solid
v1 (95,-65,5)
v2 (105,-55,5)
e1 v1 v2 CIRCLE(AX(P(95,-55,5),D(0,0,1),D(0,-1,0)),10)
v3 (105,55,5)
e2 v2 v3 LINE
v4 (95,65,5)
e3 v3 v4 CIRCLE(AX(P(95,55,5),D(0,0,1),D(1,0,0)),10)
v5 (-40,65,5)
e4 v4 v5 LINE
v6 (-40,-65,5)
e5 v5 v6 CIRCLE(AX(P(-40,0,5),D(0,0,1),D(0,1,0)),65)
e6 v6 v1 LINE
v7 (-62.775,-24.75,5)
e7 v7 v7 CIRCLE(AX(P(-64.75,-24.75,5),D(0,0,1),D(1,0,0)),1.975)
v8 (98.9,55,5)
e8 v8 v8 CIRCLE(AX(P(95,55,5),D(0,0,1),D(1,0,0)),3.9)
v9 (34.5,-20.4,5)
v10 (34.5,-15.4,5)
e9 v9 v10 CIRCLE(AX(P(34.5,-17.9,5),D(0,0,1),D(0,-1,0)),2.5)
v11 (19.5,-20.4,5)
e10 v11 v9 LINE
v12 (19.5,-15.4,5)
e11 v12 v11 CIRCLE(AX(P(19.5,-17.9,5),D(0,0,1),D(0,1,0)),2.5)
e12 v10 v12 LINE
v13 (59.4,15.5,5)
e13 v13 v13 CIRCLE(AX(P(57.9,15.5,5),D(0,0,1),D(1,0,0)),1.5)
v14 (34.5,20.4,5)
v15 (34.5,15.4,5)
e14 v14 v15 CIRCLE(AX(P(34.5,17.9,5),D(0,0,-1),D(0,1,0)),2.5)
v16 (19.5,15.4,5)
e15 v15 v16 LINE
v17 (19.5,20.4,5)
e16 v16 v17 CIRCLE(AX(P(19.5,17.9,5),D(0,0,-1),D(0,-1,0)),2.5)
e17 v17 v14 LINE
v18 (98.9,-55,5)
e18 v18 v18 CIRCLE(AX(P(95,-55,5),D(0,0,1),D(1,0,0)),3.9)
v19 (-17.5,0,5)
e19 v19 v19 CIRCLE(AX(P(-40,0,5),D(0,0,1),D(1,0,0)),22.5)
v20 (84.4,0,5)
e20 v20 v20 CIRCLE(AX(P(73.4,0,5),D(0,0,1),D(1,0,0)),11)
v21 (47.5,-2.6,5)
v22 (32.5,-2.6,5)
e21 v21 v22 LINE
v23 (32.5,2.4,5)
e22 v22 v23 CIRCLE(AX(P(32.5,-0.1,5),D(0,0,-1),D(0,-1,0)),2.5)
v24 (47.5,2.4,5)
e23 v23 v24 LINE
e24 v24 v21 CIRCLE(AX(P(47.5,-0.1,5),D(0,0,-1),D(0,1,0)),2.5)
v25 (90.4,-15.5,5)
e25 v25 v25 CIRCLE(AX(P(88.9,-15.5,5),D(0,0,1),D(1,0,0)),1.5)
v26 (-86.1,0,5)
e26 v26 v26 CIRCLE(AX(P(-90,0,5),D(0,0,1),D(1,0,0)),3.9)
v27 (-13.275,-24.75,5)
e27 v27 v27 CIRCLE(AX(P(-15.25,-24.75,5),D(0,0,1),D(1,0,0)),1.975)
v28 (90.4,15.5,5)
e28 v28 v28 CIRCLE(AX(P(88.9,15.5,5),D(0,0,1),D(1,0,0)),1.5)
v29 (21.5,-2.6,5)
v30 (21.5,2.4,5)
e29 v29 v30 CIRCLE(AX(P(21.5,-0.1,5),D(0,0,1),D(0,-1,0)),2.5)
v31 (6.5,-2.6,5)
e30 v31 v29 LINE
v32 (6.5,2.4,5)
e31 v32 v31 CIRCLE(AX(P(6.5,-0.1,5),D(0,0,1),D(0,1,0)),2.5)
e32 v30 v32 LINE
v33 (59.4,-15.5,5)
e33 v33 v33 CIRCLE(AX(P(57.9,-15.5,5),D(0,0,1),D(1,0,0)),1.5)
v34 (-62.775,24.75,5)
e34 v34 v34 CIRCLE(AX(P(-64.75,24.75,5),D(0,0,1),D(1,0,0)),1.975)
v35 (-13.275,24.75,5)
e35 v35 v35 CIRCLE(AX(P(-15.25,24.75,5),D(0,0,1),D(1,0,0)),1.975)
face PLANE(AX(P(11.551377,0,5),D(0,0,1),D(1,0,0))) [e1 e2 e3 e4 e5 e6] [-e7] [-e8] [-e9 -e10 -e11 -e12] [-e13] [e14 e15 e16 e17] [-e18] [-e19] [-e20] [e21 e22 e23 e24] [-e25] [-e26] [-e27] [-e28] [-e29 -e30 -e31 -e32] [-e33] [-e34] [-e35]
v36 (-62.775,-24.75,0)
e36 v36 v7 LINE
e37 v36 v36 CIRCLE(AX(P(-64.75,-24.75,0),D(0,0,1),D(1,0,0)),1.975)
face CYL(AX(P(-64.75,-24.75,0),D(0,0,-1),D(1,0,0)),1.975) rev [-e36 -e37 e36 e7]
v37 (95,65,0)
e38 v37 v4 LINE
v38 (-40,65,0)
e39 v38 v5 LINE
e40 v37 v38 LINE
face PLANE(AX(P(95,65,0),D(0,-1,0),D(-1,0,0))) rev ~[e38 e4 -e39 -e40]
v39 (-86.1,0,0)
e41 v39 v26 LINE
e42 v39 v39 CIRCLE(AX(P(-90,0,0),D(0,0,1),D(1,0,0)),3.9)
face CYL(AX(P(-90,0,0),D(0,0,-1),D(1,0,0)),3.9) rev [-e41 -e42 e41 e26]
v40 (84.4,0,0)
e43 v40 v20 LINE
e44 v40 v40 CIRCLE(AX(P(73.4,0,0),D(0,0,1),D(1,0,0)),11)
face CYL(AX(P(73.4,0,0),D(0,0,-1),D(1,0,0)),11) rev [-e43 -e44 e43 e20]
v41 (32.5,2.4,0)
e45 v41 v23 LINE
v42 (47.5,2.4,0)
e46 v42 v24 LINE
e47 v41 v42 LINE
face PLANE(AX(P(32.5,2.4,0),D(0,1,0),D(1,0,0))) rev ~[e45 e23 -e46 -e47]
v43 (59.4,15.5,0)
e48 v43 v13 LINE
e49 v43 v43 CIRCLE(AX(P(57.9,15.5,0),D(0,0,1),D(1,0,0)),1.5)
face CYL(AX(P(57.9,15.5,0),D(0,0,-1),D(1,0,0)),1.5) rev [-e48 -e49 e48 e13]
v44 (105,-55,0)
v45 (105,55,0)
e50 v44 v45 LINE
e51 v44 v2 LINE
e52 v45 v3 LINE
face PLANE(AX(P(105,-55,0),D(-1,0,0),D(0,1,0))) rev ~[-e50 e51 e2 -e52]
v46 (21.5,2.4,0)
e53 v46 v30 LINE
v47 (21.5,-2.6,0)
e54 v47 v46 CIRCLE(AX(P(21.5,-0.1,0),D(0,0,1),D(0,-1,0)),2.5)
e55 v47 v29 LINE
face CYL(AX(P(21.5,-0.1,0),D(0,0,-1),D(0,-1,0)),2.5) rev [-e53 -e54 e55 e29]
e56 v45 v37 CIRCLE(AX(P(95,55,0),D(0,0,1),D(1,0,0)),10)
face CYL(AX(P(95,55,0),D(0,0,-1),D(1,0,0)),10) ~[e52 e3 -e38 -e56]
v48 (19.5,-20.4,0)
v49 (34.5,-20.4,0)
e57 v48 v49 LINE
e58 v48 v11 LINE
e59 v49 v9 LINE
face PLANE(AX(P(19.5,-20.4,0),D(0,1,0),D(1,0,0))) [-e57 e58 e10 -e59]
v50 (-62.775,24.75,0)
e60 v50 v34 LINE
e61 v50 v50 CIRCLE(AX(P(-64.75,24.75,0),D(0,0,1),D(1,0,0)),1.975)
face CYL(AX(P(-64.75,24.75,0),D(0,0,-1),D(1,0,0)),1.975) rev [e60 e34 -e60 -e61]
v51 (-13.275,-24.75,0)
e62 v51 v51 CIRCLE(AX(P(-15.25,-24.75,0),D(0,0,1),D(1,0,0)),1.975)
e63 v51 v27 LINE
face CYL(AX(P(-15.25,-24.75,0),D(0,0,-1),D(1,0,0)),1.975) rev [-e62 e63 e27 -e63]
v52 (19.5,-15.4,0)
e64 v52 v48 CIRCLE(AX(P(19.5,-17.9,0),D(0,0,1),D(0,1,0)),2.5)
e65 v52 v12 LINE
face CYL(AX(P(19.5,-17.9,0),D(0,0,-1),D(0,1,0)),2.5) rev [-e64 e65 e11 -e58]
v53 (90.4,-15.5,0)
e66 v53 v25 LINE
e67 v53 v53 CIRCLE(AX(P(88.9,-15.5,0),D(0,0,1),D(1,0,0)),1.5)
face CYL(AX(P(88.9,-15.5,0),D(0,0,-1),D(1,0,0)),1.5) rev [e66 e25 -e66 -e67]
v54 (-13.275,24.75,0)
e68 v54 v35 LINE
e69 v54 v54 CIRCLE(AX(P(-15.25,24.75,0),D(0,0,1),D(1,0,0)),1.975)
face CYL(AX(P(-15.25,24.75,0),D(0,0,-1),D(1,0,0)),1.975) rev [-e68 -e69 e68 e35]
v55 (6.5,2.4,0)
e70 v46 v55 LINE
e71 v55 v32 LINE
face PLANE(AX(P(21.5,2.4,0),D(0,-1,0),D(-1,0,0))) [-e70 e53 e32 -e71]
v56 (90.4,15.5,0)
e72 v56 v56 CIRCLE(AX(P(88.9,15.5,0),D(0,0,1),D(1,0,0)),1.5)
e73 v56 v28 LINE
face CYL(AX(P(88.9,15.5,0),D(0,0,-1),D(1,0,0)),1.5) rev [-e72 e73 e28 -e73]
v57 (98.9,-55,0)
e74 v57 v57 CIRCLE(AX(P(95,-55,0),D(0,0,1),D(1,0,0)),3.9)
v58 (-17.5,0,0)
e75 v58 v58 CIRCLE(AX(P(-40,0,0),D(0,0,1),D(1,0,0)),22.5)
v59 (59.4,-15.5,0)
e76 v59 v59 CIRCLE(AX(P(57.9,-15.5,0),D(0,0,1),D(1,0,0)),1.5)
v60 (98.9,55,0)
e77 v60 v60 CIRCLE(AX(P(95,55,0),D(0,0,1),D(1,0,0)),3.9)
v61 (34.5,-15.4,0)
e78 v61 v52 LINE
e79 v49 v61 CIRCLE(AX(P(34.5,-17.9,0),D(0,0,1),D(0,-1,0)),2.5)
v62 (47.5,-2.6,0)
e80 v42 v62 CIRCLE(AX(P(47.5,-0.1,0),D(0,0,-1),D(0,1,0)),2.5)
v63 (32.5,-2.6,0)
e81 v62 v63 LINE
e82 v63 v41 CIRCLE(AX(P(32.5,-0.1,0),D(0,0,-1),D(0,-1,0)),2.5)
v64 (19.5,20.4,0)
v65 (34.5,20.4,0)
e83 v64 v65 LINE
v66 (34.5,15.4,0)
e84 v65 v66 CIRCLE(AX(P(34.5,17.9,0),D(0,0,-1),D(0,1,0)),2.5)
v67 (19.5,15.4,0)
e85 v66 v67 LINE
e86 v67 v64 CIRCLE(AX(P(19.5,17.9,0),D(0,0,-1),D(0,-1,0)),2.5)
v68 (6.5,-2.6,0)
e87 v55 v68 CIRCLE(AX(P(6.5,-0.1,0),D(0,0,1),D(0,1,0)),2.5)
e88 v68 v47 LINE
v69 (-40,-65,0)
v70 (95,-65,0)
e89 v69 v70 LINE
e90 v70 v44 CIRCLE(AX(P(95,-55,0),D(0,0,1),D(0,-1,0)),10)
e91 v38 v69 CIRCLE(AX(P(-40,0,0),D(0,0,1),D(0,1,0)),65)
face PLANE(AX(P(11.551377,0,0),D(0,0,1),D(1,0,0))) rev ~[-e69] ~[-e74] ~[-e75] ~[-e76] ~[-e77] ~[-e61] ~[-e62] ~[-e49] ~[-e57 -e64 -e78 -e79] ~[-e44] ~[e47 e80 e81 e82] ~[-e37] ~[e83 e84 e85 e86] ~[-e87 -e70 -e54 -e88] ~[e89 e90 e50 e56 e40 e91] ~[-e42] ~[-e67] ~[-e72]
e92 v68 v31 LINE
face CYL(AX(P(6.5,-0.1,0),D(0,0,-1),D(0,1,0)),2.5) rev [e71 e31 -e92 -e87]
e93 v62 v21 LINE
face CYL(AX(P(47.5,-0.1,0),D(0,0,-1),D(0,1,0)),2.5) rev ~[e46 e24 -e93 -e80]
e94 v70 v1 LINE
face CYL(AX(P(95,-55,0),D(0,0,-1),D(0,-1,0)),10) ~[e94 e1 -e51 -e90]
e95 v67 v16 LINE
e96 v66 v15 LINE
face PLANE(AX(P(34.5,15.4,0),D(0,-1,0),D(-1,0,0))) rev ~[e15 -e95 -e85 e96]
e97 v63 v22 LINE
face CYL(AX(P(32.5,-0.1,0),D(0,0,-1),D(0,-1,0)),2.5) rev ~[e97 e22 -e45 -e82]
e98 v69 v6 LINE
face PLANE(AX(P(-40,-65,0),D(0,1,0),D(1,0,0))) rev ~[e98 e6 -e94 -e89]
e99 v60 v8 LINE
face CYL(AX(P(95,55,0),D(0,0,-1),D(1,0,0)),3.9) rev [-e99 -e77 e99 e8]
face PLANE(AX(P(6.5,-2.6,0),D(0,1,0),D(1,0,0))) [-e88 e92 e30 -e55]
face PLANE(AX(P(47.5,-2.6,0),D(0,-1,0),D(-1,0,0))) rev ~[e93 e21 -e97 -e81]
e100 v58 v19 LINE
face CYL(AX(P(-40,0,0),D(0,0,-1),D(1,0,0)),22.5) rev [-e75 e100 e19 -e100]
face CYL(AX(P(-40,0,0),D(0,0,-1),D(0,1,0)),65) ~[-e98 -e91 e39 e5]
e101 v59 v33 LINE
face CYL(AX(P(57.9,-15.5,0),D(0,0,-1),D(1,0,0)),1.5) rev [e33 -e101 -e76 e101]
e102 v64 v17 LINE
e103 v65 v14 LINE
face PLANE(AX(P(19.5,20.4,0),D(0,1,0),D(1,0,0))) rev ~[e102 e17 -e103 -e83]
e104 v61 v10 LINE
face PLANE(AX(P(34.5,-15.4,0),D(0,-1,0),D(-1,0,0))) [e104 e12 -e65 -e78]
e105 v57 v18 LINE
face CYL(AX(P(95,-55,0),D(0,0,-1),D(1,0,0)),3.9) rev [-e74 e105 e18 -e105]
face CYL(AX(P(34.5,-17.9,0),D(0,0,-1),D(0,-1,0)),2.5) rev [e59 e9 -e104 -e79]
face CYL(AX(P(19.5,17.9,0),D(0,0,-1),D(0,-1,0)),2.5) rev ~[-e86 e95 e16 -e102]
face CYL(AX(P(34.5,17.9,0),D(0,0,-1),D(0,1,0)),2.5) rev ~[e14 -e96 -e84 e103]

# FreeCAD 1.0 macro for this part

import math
import FreeCAD as App
import Part
import Sketcher

V = App.Vector

doc = App.newDocument("Part")
body = doc.addObject("PartDesign::Body", "Body")

# Sketch on XY plane
sketch1 = body.newObject("Sketcher::SketchObject", "Sketch")
sketch1.AttachmentSupport = (doc.getObject("XY_Plane"), [""])
sketch1.MapMode = "FlatFace"
sketch1.addGeometry([
    Part.LineSegment(V(-40, -65, 0), V(95, -65, 0)),  # 0
    Part.ArcOfCircle(Part.Circle(V(95, -55, 0), V(0, 0, 1), 10), math.radians(-90), math.radians(0)),  # 1
    Part.LineSegment(V(105, -55, 0), V(105, 55, 0)),  # 2
    Part.ArcOfCircle(Part.Circle(V(95, 55, 0), V(0, 0, 1), 10), math.radians(0), math.radians(90)),  # 3
    Part.LineSegment(V(95, 65, 0), V(-40, 65, 0)),  # 4
    Part.ArcOfCircle(Part.Circle(V(-40, 0, 0), V(0, 0, 1), 65), math.radians(90), math.radians(270)),  # 5
    Part.Circle(V(-64.8, -24.8, 0), V(0, 0, 1), 2),  # 6
    Part.Circle(V(-90, 0, 0), V(0, 0, 1), 3.9),  # 7
    Part.Circle(V(-15.2, -24.8, 0), V(0, 0, 1), 2),  # 8
    Part.Circle(V(-40, 0, 0), V(0, 0, 1), 22.5),  # 9
    Part.Circle(V(95, -55, 0), V(0, 0, 1), 3.9),  # 10
    Part.LineSegment(V(19.5, -15.4, 0), V(34.5, -15.4, 0)),  # 11
    Part.ArcOfCircle(Part.Circle(V(34.5, -17.9, 0), V(0, 0, 1), 2.5), math.radians(-90), math.radians(90)),  # 12
    Part.LineSegment(V(34.5, -20.4, 0), V(19.5, -20.4, 0)),  # 13
    Part.ArcOfCircle(Part.Circle(V(19.5, -17.9, 0), V(0, 0, 1), 2.5), math.radians(90), math.radians(270)),  # 14
    Part.LineSegment(V(6.5, 2.4, 0), V(21.5, 2.4, 0)),  # 15
    Part.ArcOfCircle(Part.Circle(V(21.5, -0.1, 0), V(0, 0, 1), 2.5), math.radians(-90), math.radians(90)),  # 16
    Part.LineSegment(V(21.5, -2.6, 0), V(6.5, -2.6, 0)),  # 17
    Part.ArcOfCircle(Part.Circle(V(6.5, -0.1, 0), V(0, 0, 1), 2.5), math.radians(90), math.radians(270)),  # 18
    Part.ArcOfCircle(Part.Circle(V(32.5, -0.1, 0), V(0, 0, 1), 2.5), math.radians(90), math.radians(270)),  # 19
    Part.LineSegment(V(32.5, 2.4, 0), V(47.5, 2.4, 0)),  # 20
    Part.ArcOfCircle(Part.Circle(V(47.5, -0.1, 0), V(0, 0, 1), 2.5), math.radians(-90), math.radians(90)),  # 21
    Part.LineSegment(V(47.5, -2.6, 0), V(32.5, -2.6, 0)),  # 22
    Part.Circle(V(57.9, -15.5, 0), V(0, 0, 1), 1.5),  # 23
    Part.Circle(V(88.9, -15.5, 0), V(0, 0, 1), 1.5),  # 24
    Part.Circle(V(73.4, 0, 0), V(0, 0, 1), 11),  # 25
    Part.Circle(V(-64.8, 24.8, 0), V(0, 0, 1), 2),  # 26
    Part.Circle(V(-15.2, 24.8, 0), V(0, 0, 1), 2),  # 27
    Part.ArcOfCircle(Part.Circle(V(19.5, 17.9, 0), V(0, 0, 1), 2.5), math.radians(90), math.radians(270)),  # 28
    Part.LineSegment(V(19.5, 20.4, 0), V(34.5, 20.4, 0)),  # 29
    Part.ArcOfCircle(Part.Circle(V(34.5, 17.9, 0), V(0, 0, 1), 2.5), math.radians(-90), math.radians(90)),  # 30
    Part.LineSegment(V(34.5, 15.4, 0), V(19.5, 15.4, 0)),  # 31
    Part.Circle(V(57.9, 15.5, 0), V(0, 0, 1), 1.5),  # 32
    Part.Circle(V(88.9, 15.5, 0), V(0, 0, 1), 1.5),  # 33
    Part.Circle(V(95, 55, 0), V(0, 0, 1), 3.9),  # 34
], False)
sketch1.addConstraint([
    Sketcher.Constraint("Tangent", 0, 2, 1, 1),
    Sketcher.Constraint("Tangent", 1, 2, 2, 1),
    Sketcher.Constraint("Tangent", 2, 2, 3, 1),
    Sketcher.Constraint("Tangent", 3, 2, 4, 1),
    Sketcher.Constraint("Tangent", 4, 2, 5, 1),
    Sketcher.Constraint("Tangent", 5, 2, 0, 1),
    Sketcher.Constraint("Tangent", 11, 2, 12, 2),
    Sketcher.Constraint("Tangent", 12, 1, 13, 1),
    Sketcher.Constraint("Tangent", 13, 2, 14, 2),
    Sketcher.Constraint("Tangent", 14, 1, 11, 1),
    Sketcher.Constraint("Tangent", 15, 2, 16, 2),
    Sketcher.Constraint("Tangent", 16, 1, 17, 1),
    Sketcher.Constraint("Tangent", 17, 2, 18, 2),
    Sketcher.Constraint("Tangent", 18, 1, 15, 1),
    Sketcher.Constraint("Tangent", 19, 1, 20, 1),
    Sketcher.Constraint("Tangent", 20, 2, 21, 2),
    Sketcher.Constraint("Tangent", 21, 1, 22, 1),
    Sketcher.Constraint("Tangent", 22, 2, 19, 2),
    Sketcher.Constraint("Tangent", 28, 1, 29, 1),
    Sketcher.Constraint("Tangent", 29, 2, 30, 2),
    Sketcher.Constraint("Tangent", 30, 1, 31, 1),
    Sketcher.Constraint("Tangent", 31, 2, 28, 2),
    Sketcher.Constraint("Horizontal", 0),
    Sketcher.Constraint("Vertical", 2),
    Sketcher.Constraint("Horizontal", 4),
    Sketcher.Constraint("Horizontal", 11),
    Sketcher.Constraint("Horizontal", 13),
    Sketcher.Constraint("Horizontal", 15),
    Sketcher.Constraint("Horizontal", 17),
    Sketcher.Constraint("Horizontal", 20),
    Sketcher.Constraint("Horizontal", 22),
    Sketcher.Constraint("Horizontal", 29),
    Sketcher.Constraint("Horizontal", 31),
    Sketcher.Constraint("Coincident", 9, 3, 5, 3),
    Sketcher.Constraint("Coincident", 10, 3, 1, 3),
    Sketcher.Constraint("Coincident", 34, 3, 3, 3),
    Sketcher.Constraint("Equal", 1, 3),
    Sketcher.Constraint("Equal", 6, 8),
    Sketcher.Constraint("Equal", 7, 10),
    Sketcher.Constraint("Equal", 14, 16),
    Sketcher.Constraint("Equal", 18, 19),
    Sketcher.Constraint("Equal", 23, 24),
    Sketcher.Constraint("Equal", 8, 26),
    Sketcher.Constraint("Equal", 26, 27),
    Sketcher.Constraint("Equal", 21, 28),
    Sketcher.Constraint("Equal", 24, 32),
    Sketcher.Constraint("Equal", 32, 33),
    Sketcher.Constraint("Equal", 10, 34),
    Sketcher.Constraint("Symmetric", 6, 3, 26, 3, -1),
    Sketcher.Constraint("Symmetric", 8, 3, 27, 3, -1),
    Sketcher.Constraint("Symmetric", 14, 3, 28, 3, -1),
    Sketcher.Constraint("Symmetric", 23, 3, 32, 3, -1),
    Sketcher.Constraint("Symmetric", 24, 3, 33, 3, -1),
    Sketcher.Constraint("PointOnObject", 5, 3, -1),
    Sketcher.Constraint("PointOnObject", 7, 3, -1),
    Sketcher.Constraint("PointOnObject", 25, 3, -1),
    Sketcher.Constraint("Horizontal", 6, 3, 8, 3),
    Sketcher.Constraint("Horizontal", 18, 3, 19, 3),
    Sketcher.Constraint("Horizontal", 23, 3, 24, 3),
    Sketcher.Constraint("Vertical", 12, 3, 30, 3),
    Sketcher.Constraint("Equal", 13, 15),
    Sketcher.Constraint("Equal", 17, 20),
    Sketcher.Constraint("Diameter", 9, 45.0),
    Sketcher.Constraint("Diameter", 23, 3.0),
    Sketcher.Constraint("Diameter", 25, 22.0),
    Sketcher.Constraint("Radius", 1, 10.0),
    Sketcher.Constraint("Radius", 5, 65.0),
    Sketcher.Constraint("Diameter", 7, 7.8),
    Sketcher.Constraint("Radius", 12, 2.5),
    Sketcher.Constraint("Diameter", 6, 3.95),
    Sketcher.Constraint("DistanceX", 0, 1, 0, 2, 135.0),
    Sketcher.Constraint("DistanceX", 11, 1, 11, 2, 15.0),
    Sketcher.Constraint("DistanceX", -1, 1, 1, 3, 95.0),
    Sketcher.Constraint("DistanceX", 7, 3, -1, 1, 90.0),
    Sketcher.Constraint("DistanceX", 14, 3, 16, 3, 2.0),
    Sketcher.Constraint("DistanceX", 16, 3, 19, 3, 11.0),
    Sketcher.Constraint("DistanceX", 23, 3, 24, 3, 31.0),
    Sketcher.Constraint("DistanceY", 16, 3, 28, 3, 18.0),
    Sketcher.Constraint("DistanceY", 23, 3, 32, 3, 31.0),
    Sketcher.Constraint("DistanceX", -1, 1, 12, 3, 34.5),
    Sketcher.Constraint("DistanceY", 12, 3, -1, 1, 17.9),
    Sketcher.Constraint("DistanceX", -1, 1, 23, 3, 57.9),
    Sketcher.Constraint("DistanceX", -1, 1, 25, 3, 73.4),
    Sketcher.Constraint("DistanceX", 6, 3, 8, 3, 49.5),
    Sketcher.Constraint("DistanceY", 6, 3, 26, 3, 49.5),
    Sketcher.Constraint("DistanceX", 6, 3, -1, 1, 64.75),
])
pad1 = body.newObject("PartDesign::Pad", "Pad")
pad1.Profile = sketch1
pad1.Length = 5

doc.recompute()
